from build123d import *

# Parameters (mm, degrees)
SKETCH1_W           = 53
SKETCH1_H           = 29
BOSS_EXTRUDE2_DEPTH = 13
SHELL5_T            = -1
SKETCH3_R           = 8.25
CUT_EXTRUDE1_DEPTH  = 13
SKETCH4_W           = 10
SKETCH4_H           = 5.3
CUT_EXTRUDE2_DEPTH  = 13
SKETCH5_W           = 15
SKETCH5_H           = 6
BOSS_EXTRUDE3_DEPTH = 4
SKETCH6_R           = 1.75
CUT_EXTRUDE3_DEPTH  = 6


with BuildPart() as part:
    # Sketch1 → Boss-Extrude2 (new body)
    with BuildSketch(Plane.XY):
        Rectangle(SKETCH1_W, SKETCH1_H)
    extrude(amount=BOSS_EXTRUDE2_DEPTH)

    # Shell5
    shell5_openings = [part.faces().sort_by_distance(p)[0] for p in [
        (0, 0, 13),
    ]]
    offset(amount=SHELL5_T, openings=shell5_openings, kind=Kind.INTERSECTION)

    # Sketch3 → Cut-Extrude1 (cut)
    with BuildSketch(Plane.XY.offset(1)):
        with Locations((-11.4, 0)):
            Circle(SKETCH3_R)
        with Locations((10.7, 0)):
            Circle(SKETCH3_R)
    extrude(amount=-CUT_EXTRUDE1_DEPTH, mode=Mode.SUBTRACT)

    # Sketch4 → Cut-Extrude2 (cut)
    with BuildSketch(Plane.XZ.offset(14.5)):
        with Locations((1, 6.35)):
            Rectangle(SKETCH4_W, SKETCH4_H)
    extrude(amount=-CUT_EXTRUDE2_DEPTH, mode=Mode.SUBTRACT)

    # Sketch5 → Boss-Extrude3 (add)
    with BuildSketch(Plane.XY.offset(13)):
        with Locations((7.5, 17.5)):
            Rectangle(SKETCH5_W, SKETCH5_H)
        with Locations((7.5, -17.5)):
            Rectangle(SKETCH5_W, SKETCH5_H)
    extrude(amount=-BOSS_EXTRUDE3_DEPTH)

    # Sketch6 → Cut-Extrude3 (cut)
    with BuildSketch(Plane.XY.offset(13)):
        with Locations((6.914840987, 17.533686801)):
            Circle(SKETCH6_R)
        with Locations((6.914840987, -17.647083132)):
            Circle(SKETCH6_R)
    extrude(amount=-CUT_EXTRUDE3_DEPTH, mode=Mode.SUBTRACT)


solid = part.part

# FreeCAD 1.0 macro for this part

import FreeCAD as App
import Part
import Sketcher
from FreeCAD import Vector


def faces_at(feature, points):
    """Names of the faces that lie closest to the given points."""
    faces = feature.Shape.Faces
    near = lambda p: min(range(len(faces)), key=lambda i: faces[i].distToShape(Part.Vertex(*p))[0])
    return sorted({f"Face{near(p) + 1}" for p in points})


def add_polygon(sketch, points):
    """Adds a closed chain of lines whose ends are joined by coincident constraints."""
    first, n = sketch.GeometryCount, len(points)
    for a, b in zip(points, points[1:] + points[:1]):
        sketch.addGeometry(Part.LineSegment(App.Vector(*a, 0), App.Vector(*b, 0)), False)
    for i in range(n):
        sketch.addConstraint(Sketcher.Constraint("Coincident", first + i, 2, first + (i + 1) % n, 1))

doc = App.newDocument("Part")
body = doc.addObject("PartDesign::Body", "Body")

sketch1 = doc.addObject("Sketcher::SketchObject", "Sketch")
body.addObject(sketch1)
sketch1.AttachmentSupport = (doc.XY_Plane, [""])
sketch1.MapMode = "FlatFace"
add_polygon(sketch1, [(-26, 14), (-26, -14), (26, -14), (26, 14)])
sketch1.addConstraint(Sketcher.Constraint("Vertical", 0))
sketch1.addConstraint(Sketcher.Constraint("Horizontal", 1))
sketch1.addConstraint(Sketcher.Constraint("Vertical", 2))
sketch1.addConstraint(Sketcher.Constraint("Horizontal", 3))
sketch1.addConstraint(Sketcher.Constraint("Symmetric", 0, 2, 2, 2, -1, 1))
sketch1.addConstraint(Sketcher.Constraint("DistanceX", 1, 1, 1, 2, 53.0))
sketch1.addConstraint(Sketcher.Constraint("DistanceY", 0, 2, 0, 1, 29.0))
pad1 = doc.addObject("PartDesign::Pad", "Pad")
body.addObject(pad1)
pad1.Profile = sketch1
pad1.Length = 13
doc.recompute()

thickness = doc.addObject("PartDesign::Thickness", "Thickness")
body.addObject(thickness)
thickness.Base = (pad1, faces_at(pad1, [(0, 0, 13)]))
thickness.Value = 1
thickness.Reversed = True
thickness.Join = "Intersection"

sketch2 = doc.addObject("Sketcher::SketchObject", "Sketch001")
body.addObject(sketch2)
sketch2.AttachmentSupport = (doc.XY_Plane, [""])
sketch2.MapMode = "FlatFace"
sketch2.AttachmentOffset = App.Placement(Vector(0, 0, 1), App.Rotation())
sketch2.addGeometry(Part.Circle(Vector(-11, 0, 0), Vector(0, 0, 1), 8), False)
sketch2.addGeometry(Part.Circle(Vector(11, 0, 0), Vector(0, 0, 1), 8), False)
sketch2.addConstraint(Sketcher.Constraint("Equal", 0, 1))
sketch2.addConstraint(Sketcher.Constraint("PointOnObject", 0, 3, -1))
sketch2.addConstraint(Sketcher.Constraint("PointOnObject", 1, 3, -1))
sketch2.addConstraint(Sketcher.Constraint("Diameter", 0, 16.5))
sketch2.addConstraint(Sketcher.Constraint("DistanceX", 0, 3, -1, 1, 11.4))
sketch2.addConstraint(Sketcher.Constraint("DistanceX", -1, 1, 1, 3, 10.7))
pocket1 = doc.addObject("PartDesign::Pocket", "Pocket")
body.addObject(pocket1)
pocket1.Profile = sketch2
pocket1.Length = 13

sketch3 = doc.addObject("Sketcher::SketchObject", "Sketch002")
body.addObject(sketch3)
sketch3.AttachmentSupport = (doc.XZ_Plane, [""])
sketch3.MapMode = "FlatFace"
sketch3.AttachmentOffset = App.Placement(Vector(0, 0, 14.5), App.Rotation())
add_polygon(sketch3, [(-4, 9), (-4, 4), (6, 4), (6, 9)])
sketch3.addConstraint(Sketcher.Constraint("Vertical", 0))
sketch3.addConstraint(Sketcher.Constraint("Horizontal", 1))
sketch3.addConstraint(Sketcher.Constraint("Vertical", 2))
sketch3.addConstraint(Sketcher.Constraint("Horizontal", 3))
sketch3.addConstraint(Sketcher.Constraint("DistanceX", 1, 1, 1, 2, 10.0))
sketch3.addConstraint(Sketcher.Constraint("DistanceY", 0, 2, 0, 1, 5.3))
sketch3.addConstraint(Sketcher.Constraint("DistanceX", 0, 2, -1, 1, 4.0))
sketch3.addConstraint(Sketcher.Constraint("DistanceY", -1, 1, 2, 2, 9.0))
pocket2 = doc.addObject("PartDesign::Pocket", "Pocket001")
body.addObject(pocket2)
pocket2.Profile = sketch3
pocket2.Length = 13

sketch4 = doc.addObject("Sketcher::SketchObject", "Sketch003")
body.addObject(sketch4)
sketch4.AttachmentSupport = (doc.XY_Plane, [""])
sketch4.MapMode = "FlatFace"
sketch4.AttachmentOffset = App.Placement(Vector(0, 0, 13), App.Rotation())
add_polygon(sketch4, [(0, 20), (0, 14), (15, 14), (15, 20)])
add_polygon(sketch4, [(0, -14), (0, -20), (15, -20), (15, -14)])
sketch4.addConstraint(Sketcher.Constraint("Vertical", 0))
sketch4.addConstraint(Sketcher.Constraint("Horizontal", 1))
sketch4.addConstraint(Sketcher.Constraint("Vertical", 2))
sketch4.addConstraint(Sketcher.Constraint("Horizontal", 3))
sketch4.addConstraint(Sketcher.Constraint("Vertical", 4))
sketch4.addConstraint(Sketcher.Constraint("Horizontal", 5))
sketch4.addConstraint(Sketcher.Constraint("Vertical", 6))
sketch4.addConstraint(Sketcher.Constraint("Horizontal", 7))
sketch4.addConstraint(Sketcher.Constraint("Symmetric", 3, 2, 4, 2, -1, 1))
sketch4.addConstraint(Sketcher.Constraint("Symmetric", 1, 2, 6, 2, -1))
sketch4.addConstraint(Sketcher.Constraint("PointOnObject", 0, 2, -2))
sketch4.addConstraint(Sketcher.Constraint("DistanceX", 1, 1, 1, 2, 15.0))
sketch4.addConstraint(Sketcher.Constraint("DistanceY", 0, 2, 0, 1, 6.0))
sketch4.addConstraint(Sketcher.Constraint("DistanceY", 4, 2, 0, 2, 35.0))
pad2 = doc.addObject("PartDesign::Pad", "Pad001")
body.addObject(pad2)
pad2.Profile = sketch4
pad2.Length = 4
pad2.Reversed = True

sketch5 = doc.addObject("Sketcher::SketchObject", "Sketch004")
body.addObject(sketch5)
sketch5.AttachmentSupport = (doc.XY_Plane, [""])
sketch5.MapMode = "FlatFace"
sketch5.AttachmentOffset = App.Placement(Vector(0, 0, 13), App.Rotation())
sketch5.addGeometry(Part.Circle(Vector(6.9, 17.5, 0), Vector(0, 0, 1), 1.8), False)
sketch5.addGeometry(Part.Circle(Vector(6.9, -17.6, 0), Vector(0, 0, 1), 1.8), False)
sketch5.addConstraint(Sketcher.Constraint("Equal", 0, 1))
sketch5.addConstraint(Sketcher.Constraint("Vertical", 0, 3, 1, 3))
sketch5.addConstraint(Sketcher.Constraint("Diameter", 0, 3.5))
sketch5.addConstraint(Sketcher.Constraint("DistanceX", -1, 1, 0, 3, 6.914841))
sketch5.addConstraint(Sketcher.Constraint("DistanceY", 1, 3, 0, 3, 35.18077))
sketch5.addConstraint(Sketcher.Constraint("DistanceY", -1, 1, 0, 3, 17.533687))
pocket3 = doc.addObject("PartDesign::Pocket", "Pocket002")
body.addObject(pocket3)
pocket3.Profile = sketch5
pocket3.Length = 6

doc.recompute()
